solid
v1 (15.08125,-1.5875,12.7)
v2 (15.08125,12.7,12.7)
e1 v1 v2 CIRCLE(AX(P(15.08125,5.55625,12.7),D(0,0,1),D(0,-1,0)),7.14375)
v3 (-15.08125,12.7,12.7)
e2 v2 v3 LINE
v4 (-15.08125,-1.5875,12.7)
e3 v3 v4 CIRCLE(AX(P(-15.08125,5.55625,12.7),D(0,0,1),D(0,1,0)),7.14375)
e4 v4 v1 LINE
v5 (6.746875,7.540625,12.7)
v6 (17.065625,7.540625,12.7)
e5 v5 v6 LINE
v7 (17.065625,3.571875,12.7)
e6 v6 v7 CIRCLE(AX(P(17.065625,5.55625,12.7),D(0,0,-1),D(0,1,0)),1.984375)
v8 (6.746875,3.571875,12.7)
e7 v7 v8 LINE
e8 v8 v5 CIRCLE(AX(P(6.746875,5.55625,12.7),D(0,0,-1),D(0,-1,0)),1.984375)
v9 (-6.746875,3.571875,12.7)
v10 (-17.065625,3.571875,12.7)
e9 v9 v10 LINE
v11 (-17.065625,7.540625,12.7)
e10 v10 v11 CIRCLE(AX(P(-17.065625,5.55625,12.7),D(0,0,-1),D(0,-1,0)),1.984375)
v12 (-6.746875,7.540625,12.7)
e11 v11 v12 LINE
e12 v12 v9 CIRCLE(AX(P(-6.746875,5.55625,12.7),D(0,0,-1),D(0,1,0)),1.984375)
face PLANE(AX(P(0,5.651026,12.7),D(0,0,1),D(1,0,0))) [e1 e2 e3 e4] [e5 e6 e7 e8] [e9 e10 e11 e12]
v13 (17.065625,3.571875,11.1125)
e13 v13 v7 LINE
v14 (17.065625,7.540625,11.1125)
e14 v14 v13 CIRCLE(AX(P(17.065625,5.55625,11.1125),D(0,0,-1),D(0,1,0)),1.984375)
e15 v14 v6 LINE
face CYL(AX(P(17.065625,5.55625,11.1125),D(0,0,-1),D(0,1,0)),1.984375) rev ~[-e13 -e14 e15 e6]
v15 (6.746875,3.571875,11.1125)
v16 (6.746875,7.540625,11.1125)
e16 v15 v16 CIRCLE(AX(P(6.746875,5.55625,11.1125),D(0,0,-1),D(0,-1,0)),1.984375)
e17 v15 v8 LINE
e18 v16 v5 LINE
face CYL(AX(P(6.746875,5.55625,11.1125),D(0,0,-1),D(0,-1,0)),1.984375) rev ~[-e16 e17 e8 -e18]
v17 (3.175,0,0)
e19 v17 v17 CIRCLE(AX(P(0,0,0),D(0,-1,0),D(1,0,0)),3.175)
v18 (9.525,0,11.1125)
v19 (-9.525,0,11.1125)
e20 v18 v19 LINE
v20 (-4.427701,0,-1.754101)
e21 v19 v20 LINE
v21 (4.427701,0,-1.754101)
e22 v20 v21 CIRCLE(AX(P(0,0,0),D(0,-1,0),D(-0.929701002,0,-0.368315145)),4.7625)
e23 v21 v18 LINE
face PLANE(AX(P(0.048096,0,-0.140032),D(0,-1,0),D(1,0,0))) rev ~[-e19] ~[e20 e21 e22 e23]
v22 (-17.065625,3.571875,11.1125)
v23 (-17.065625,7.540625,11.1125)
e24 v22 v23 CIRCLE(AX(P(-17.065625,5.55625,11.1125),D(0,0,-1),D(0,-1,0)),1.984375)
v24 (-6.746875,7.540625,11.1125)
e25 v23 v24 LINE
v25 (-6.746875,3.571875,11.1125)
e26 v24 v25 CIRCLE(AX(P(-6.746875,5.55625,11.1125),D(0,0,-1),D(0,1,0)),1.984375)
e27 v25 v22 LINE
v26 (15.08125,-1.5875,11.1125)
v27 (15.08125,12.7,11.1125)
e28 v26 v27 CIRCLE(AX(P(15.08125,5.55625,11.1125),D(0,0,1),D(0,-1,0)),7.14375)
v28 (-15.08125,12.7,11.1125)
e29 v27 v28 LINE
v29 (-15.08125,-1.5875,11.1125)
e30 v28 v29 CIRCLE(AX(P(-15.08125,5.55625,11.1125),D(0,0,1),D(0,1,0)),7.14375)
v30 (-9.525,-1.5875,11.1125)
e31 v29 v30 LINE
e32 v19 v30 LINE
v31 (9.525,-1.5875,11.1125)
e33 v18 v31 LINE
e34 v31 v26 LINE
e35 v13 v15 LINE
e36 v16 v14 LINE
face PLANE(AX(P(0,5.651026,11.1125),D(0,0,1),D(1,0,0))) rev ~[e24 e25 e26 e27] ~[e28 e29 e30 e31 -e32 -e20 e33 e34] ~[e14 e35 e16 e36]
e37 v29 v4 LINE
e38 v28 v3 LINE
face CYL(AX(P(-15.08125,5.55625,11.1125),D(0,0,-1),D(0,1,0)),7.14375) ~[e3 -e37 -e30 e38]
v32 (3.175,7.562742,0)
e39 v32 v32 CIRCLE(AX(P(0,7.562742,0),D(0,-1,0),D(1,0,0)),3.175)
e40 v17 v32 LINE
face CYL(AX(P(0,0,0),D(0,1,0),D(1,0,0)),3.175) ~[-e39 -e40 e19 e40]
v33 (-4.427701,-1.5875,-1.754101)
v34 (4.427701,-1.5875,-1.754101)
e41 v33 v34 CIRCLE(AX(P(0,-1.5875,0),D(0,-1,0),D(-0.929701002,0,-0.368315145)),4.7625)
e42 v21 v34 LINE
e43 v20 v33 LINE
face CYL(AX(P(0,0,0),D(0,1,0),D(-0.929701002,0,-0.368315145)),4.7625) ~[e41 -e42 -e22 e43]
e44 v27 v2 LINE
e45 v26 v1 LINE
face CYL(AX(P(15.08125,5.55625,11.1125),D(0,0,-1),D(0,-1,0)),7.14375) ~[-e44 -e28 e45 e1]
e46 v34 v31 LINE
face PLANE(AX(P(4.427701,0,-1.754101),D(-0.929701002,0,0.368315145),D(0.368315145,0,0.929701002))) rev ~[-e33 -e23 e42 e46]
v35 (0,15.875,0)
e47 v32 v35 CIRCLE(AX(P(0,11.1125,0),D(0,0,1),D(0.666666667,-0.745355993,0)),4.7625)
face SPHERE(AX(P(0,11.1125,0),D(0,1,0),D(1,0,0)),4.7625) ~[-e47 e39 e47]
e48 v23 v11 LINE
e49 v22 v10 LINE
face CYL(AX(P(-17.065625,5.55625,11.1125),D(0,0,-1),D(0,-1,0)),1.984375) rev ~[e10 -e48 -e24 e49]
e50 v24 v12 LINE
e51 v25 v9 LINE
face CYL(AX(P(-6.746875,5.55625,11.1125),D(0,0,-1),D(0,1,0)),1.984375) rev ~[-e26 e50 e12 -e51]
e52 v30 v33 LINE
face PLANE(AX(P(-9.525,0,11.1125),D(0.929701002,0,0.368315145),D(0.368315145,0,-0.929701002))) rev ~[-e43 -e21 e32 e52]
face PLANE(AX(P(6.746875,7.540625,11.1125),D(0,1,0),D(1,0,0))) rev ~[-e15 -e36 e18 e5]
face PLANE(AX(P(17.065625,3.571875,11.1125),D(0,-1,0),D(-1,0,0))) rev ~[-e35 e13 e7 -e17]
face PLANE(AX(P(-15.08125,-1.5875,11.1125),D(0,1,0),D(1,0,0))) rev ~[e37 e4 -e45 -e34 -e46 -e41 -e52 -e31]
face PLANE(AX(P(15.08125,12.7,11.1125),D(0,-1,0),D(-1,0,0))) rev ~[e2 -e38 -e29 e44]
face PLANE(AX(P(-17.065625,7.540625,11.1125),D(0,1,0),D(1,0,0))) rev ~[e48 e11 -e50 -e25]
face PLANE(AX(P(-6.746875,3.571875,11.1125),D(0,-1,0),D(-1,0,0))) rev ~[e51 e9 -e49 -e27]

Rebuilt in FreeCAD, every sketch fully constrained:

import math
import FreeCAD as App
import Part
import Sketcher
from FreeCAD import Vector
Q = App.Units.Quantity

doc = App.newDocument("Part")
body = doc.addObject("PartDesign::Body", "Body")

# Sketch on XZ plane
sketch1 = doc.addObject("Sketcher::SketchObject", "Sketch")
body.addObject(sketch1)
sketch1.AttachmentSupport = (doc.XZ_Plane, [""])
sketch1.MapMode = "FlatFace"
sketch1.addGeometry([
    Part.ArcOfCircle(Part.Circle(Vector(0, 0, 0), Vector(0, 0, 1), 4.8), math.radians(-158), math.radians(-22)),
    Part.LineSegment(Vector(4.4, -1.8, 0), Vector(9.5, 11.1, 0)),
    Part.LineSegment(Vector(9.5, 11.1, 0), Vector(-9.5, 11.1, 0)),
    Part.LineSegment(Vector(-9.5, 11.1, 0), Vector(-4.4, -1.8, 0)),
], False)
sketch1.addConstraint([
    Sketcher.Constraint("Tangent", 0, 2, 1, 1),
    Sketcher.Constraint("Coincident", 1, 2, 2, 1),
    Sketcher.Constraint("Coincident", 2, 2, 3, 1),
    Sketcher.Constraint("Tangent", 3, 2, 0, 1),
    Sketcher.Constraint("Horizontal", 2),
    Sketcher.Constraint("Coincident", 0, 3, -1, 1),
    Sketcher.Constraint("Horizontal", 0, 2, 3, 2),
    Sketcher.Constraint("Radius", 0, Q("0.1875 in")),
    Sketcher.Constraint("DistanceX", 2, 2, 2, 1, Q("0.75 in")),
    Sketcher.Constraint("DistanceY", -1, 1, 1, 2, Q("0.4375 in")),
])
pad1 = doc.addObject("PartDesign::Pad", "Pad")
body.addObject(pad1)
pad1.Profile = sketch1
pad1.Length = Q("0.0625 in")

# Sketch on XY plane
sketch2 = doc.addObject("Sketcher::SketchObject", "Sketch001")
body.addObject(sketch2)
sketch2.AttachmentSupport = (doc.XY_Plane, [""])
sketch2.MapMode = "FlatFace"
sketch2.addGeometry([
    Part.LineSegment(Vector(0, 0, 0), Vector(3.2, 0, 0)),
    Part.LineSegment(Vector(3.2, 0, 0), Vector(3.2, 7.6, 0)),
    Part.ArcOfCircle(Part.Circle(Vector(0, 11.1, 0), Vector(0, 0, 1), 4.8), math.radians(-48), math.radians(90)),
    Part.LineSegment(Vector(0, 15.9, 0), Vector(0, 0, 0)),
], False)
sketch2.addConstraint([
    Sketcher.Constraint("Coincident", 0, 2, 1, 1),
    Sketcher.Constraint("Coincident", 1, 2, 2, 1),
    Sketcher.Constraint("Coincident", 2, 2, 3, 1),
    Sketcher.Constraint("Coincident", 3, 2, 0, 1),
    Sketcher.Constraint("Horizontal", 0),
    Sketcher.Constraint("Vertical", 1),
    Sketcher.Constraint("Vertical", 3),
    Sketcher.Constraint("Coincident", 3, 2, -1, 1),
    Sketcher.Constraint("PointOnObject", 2, 3, -2),
    Sketcher.Constraint("Radius", 2, Q("0.1875 in")),
    Sketcher.Constraint("DistanceX", 0, 1, 0, 2, Q("0.125 in")),
    Sketcher.Constraint("DistanceY", 3, 2, 3, 1, Q("0.625 in")),
])
revolution = doc.addObject("PartDesign::Revolution", "Revolution")
body.addObject(revolution)
revolution.Profile = sketch2
revolution.ReferenceAxis = (sketch2, ["V_Axis"])
revolution.Angle = 360

# Sketch on XY plane
sketch3 = doc.addObject("Sketcher::SketchObject", "Sketch002")
body.addObject(sketch3)
sketch3.AttachmentSupport = (doc.XY_Plane, [""])
sketch3.MapMode = "FlatFace"
sketch3.AttachmentOffset = App.Placement(Vector(0, 0, 0.4375 * 25.4), App.Rotation())
sketch3.addGeometry([
    Part.ArcOfCircle(Part.Circle(Vector(15.1, 5.6, 0), Vector(0, 0, 1), 7.1), math.radians(-90), math.radians(90)),  # 0
    Part.LineSegment(Vector(15.1, 12.7, 0), Vector(-15.1, 12.7, 0)),  # 1
    Part.ArcOfCircle(Part.Circle(Vector(-15.1, 5.6, 0), Vector(0, 0, 1), 7.1), math.radians(90), math.radians(270)),  # 2
    Part.LineSegment(Vector(-15.1, -1.6, 0), Vector(15.1, -1.6, 0)),  # 3
    Part.LineSegment(Vector(-6.7, 3.6, 0), Vector(-17.1, 3.6, 0)),  # 4
    Part.ArcOfCircle(Part.Circle(Vector(-17.1, 5.6, 0), Vector(0, 0, 1), 2), math.radians(90), math.radians(270)),  # 5
    Part.LineSegment(Vector(-17.1, 7.5, 0), Vector(-6.7, 7.5, 0)),  # 6
    Part.ArcOfCircle(Part.Circle(Vector(-6.7, 5.6, 0), Vector(0, 0, 1), 2), math.radians(-90), math.radians(90)),  # 7
    Part.LineSegment(Vector(6.7, 7.5, 0), Vector(17.1, 7.5, 0)),  # 8
    Part.ArcOfCircle(Part.Circle(Vector(17.1, 5.6, 0), Vector(0, 0, 1), 2), math.radians(-90), math.radians(90)),  # 9
    Part.LineSegment(Vector(17.1, 3.6, 0), Vector(6.7, 3.6, 0)),  # 10
    Part.ArcOfCircle(Part.Circle(Vector(6.7, 5.6, 0), Vector(0, 0, 1), 2), math.radians(90), math.radians(270)),  # 11
], False)
sketch3.addConstraint([
    Sketcher.Constraint("Tangent", 0, 2, 1, 1),
    Sketcher.Constraint("Tangent", 1, 2, 2, 1),
    Sketcher.Constraint("Tangent", 2, 2, 3, 1),
    Sketcher.Constraint("Tangent", 3, 2, 0, 1),
    Sketcher.Constraint("Tangent", 4, 2, 5, 2),
    Sketcher.Constraint("Tangent", 5, 1, 6, 1),
    Sketcher.Constraint("Tangent", 6, 2, 7, 2),
    Sketcher.Constraint("Tangent", 7, 1, 4, 1),
    Sketcher.Constraint("Tangent", 8, 2, 9, 2),
    Sketcher.Constraint("Tangent", 9, 1, 10, 1),
    Sketcher.Constraint("Tangent", 10, 2, 11, 2),
    Sketcher.Constraint("Tangent", 11, 1, 8, 1),
    Sketcher.Constraint("Horizontal", 1),
    Sketcher.Constraint("Horizontal", 3),
    Sketcher.Constraint("Horizontal", 4),
    Sketcher.Constraint("Horizontal", 6),
    Sketcher.Constraint("Horizontal", 8),
    Sketcher.Constraint("Horizontal", 10),
    Sketcher.Constraint("Equal", 7, 9),
    Sketcher.Constraint("Symmetric", 5, 3, 9, 3, -2),
    Sketcher.Constraint("Horizontal", 2, 3, 5, 3),
    Sketcher.Constraint("Equal", 6, 8),
    Sketcher.Constraint("Radius", 0, Q("0.28125 in")),
    Sketcher.Constraint("Radius", 5, Q("0.078125 in")),
    Sketcher.Constraint("DistanceY", -1, 1, 0, 2, Q("0.5 in")),
    Sketcher.Constraint("DistanceX", 1, 2, 1, 1, Q("1.1875 in")),
    Sketcher.Constraint("DistanceX", 4, 2, 4, 1, Q("0.40625 in")),
    Sketcher.Constraint("DistanceX", -1, 1, 0, 3, Q("0.59375 in")),
    Sketcher.Constraint("DistanceX", 5, 3, -1, 1, Q("0.671875 in")),
])
pad2 = doc.addObject("PartDesign::Pad", "Pad001")
body.addObject(pad2)
pad2.Profile = sketch3
pad2.Length = Q("0.0625 in")

doc.recompute()
